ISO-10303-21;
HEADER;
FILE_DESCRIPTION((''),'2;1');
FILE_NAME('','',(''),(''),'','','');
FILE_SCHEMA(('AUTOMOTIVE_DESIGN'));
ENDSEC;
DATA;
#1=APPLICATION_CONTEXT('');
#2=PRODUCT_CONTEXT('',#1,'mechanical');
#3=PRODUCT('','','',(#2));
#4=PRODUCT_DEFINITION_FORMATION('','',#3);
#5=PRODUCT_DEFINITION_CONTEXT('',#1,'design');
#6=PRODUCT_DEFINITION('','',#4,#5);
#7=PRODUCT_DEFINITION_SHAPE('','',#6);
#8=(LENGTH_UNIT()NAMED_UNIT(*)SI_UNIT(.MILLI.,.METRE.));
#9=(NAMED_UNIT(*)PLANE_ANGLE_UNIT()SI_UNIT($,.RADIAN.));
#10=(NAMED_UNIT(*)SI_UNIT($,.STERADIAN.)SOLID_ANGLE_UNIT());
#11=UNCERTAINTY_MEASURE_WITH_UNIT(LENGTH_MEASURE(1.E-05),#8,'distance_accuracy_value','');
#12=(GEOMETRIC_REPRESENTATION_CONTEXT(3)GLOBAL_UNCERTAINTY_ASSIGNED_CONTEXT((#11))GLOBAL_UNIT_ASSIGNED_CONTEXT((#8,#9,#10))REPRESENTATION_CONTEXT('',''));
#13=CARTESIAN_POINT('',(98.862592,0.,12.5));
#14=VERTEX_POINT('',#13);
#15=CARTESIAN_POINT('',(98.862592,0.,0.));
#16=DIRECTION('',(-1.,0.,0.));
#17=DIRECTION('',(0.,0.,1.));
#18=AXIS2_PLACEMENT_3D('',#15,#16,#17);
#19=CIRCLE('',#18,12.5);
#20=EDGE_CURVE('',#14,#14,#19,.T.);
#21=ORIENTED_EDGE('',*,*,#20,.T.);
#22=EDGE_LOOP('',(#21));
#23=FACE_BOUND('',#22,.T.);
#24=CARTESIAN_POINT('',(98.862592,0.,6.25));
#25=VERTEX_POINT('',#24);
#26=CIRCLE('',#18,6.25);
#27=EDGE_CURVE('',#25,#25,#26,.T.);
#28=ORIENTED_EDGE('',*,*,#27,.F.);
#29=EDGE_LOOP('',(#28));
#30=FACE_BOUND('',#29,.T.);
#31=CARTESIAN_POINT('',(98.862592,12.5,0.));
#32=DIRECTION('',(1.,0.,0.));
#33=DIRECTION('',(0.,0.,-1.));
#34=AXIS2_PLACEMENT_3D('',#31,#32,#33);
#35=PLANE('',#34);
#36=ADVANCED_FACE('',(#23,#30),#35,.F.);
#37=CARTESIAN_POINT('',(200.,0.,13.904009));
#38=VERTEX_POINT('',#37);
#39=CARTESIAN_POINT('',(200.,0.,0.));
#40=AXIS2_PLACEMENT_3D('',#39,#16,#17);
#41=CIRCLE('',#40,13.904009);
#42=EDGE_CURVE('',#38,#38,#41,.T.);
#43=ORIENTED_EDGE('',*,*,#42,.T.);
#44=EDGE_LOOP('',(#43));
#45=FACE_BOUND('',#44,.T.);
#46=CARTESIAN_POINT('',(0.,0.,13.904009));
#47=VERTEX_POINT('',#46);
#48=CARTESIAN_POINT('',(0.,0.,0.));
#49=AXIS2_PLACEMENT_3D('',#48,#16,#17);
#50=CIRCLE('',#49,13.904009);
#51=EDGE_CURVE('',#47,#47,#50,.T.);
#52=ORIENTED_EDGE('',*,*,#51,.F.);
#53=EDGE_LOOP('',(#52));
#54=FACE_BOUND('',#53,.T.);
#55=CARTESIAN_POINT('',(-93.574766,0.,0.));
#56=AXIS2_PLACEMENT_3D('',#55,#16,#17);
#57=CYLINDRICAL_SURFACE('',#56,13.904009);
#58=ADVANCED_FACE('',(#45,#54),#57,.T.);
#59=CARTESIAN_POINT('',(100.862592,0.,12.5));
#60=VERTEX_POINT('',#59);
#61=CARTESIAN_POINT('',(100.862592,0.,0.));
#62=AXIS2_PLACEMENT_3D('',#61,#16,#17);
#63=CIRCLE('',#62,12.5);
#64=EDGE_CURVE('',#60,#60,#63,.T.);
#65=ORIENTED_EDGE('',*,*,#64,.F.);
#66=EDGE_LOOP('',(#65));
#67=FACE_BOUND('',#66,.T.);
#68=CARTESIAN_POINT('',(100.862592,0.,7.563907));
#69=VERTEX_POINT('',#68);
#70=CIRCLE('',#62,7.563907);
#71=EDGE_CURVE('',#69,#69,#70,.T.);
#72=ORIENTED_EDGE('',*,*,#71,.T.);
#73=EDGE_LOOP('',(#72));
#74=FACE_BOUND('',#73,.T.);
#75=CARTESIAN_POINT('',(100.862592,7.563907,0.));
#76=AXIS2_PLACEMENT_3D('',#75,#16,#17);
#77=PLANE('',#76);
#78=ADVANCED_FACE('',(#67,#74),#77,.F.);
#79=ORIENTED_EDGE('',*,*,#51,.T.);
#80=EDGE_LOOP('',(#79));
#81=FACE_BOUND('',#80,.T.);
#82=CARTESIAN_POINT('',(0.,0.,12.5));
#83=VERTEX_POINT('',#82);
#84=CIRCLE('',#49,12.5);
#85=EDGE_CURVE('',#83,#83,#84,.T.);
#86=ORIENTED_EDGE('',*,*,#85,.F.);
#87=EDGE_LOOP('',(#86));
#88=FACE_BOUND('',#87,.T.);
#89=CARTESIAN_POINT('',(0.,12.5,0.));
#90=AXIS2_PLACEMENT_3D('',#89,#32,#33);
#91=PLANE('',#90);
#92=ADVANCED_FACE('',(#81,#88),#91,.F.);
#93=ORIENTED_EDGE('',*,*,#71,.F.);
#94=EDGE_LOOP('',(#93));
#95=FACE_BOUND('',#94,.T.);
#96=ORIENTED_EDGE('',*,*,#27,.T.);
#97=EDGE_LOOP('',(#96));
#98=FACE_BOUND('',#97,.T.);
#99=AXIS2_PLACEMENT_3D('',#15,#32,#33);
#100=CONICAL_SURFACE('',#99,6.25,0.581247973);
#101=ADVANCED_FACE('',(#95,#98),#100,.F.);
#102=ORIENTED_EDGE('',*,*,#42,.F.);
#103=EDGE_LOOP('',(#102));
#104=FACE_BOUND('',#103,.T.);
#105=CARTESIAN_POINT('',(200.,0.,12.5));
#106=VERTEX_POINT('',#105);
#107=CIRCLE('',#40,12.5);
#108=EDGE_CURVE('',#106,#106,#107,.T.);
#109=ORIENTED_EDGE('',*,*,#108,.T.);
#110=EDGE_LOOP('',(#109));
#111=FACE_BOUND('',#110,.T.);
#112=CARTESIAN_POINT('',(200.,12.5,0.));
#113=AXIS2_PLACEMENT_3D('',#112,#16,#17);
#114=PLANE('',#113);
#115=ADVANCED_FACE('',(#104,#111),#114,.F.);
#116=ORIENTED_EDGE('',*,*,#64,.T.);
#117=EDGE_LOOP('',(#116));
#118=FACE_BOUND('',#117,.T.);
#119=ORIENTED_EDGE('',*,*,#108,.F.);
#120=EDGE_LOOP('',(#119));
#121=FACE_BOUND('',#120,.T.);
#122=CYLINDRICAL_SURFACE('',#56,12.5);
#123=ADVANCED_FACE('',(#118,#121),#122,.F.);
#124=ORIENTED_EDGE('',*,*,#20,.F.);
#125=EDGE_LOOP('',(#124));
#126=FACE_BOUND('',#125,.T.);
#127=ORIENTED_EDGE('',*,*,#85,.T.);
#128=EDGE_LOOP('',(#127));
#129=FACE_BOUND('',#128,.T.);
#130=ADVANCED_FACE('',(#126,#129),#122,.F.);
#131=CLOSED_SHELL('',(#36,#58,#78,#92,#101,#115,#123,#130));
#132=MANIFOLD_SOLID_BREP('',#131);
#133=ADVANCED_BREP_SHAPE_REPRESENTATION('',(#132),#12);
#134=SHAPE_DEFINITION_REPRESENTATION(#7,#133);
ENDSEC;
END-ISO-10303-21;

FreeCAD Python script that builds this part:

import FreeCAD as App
import Part
import Sketcher

doc = App.newDocument("Part")
params = doc.addObject("Spreadsheet::Sheet", "Params")
for row, (alias, value) in enumerate([
    ("sketch1_width", "200 mm"),
    ("sketch1_height", "6.25 mm"),
    ("revolution_angle", "360 deg"),
], start=1):
    params.set(f"A{row}", alias)
    params.set(f"B{row}", "=" + value)
    params.setAlias(f"B{row}", alias)

body = doc.addObject("PartDesign::Body", "Body")

# Sketch on XY plane
sketch1 = doc.addObject("Sketcher::SketchObject", "Sketch")
body.addObject(sketch1)
sketch1.AttachmentSupport = (doc.XY_Plane, [""])
sketch1.MapMode = "FlatFace"
sketch1.addGeometry(Part.LineSegment(App.Vector(0, 12.5, 0), App.Vector(98.9, 12.5, 0)), False)
sketch1.addGeometry(Part.LineSegment(App.Vector(98.9, 12.5, 0), App.Vector(98.9, 6.2, 0)), False)
sketch1.addGeometry(Part.LineSegment(App.Vector(98.9, 6.2, 0), App.Vector(100.9, 7.6, 0)), False)
sketch1.addGeometry(Part.LineSegment(App.Vector(100.9, 7.6, 0), App.Vector(100.9, 12.5, 0)), False)
sketch1.addGeometry(Part.LineSegment(App.Vector(100.9, 12.5, 0), App.Vector(200, 12.5, 0)), False)
sketch1.addGeometry(Part.LineSegment(App.Vector(200, 12.5, 0), App.Vector(200, 13.9, 0)), False)
sketch1.addGeometry(Part.LineSegment(App.Vector(200, 13.9, 0), App.Vector(0, 13.9, 0)), False)
sketch1.addGeometry(Part.LineSegment(App.Vector(0, 13.9, 0), App.Vector(0, 12.5, 0)), False)
sketch1.addConstraint(Sketcher.Constraint("Coincident", 0, 2, 1, 1))
sketch1.addConstraint(Sketcher.Constraint("Coincident", 1, 2, 2, 1))
sketch1.addConstraint(Sketcher.Constraint("Coincident", 2, 2, 3, 1))
sketch1.addConstraint(Sketcher.Constraint("Coincident", 3, 2, 4, 1))
sketch1.addConstraint(Sketcher.Constraint("Coincident", 4, 2, 5, 1))
sketch1.addConstraint(Sketcher.Constraint("Coincident", 5, 2, 6, 1))
sketch1.addConstraint(Sketcher.Constraint("Coincident", 6, 2, 7, 1))
sketch1.addConstraint(Sketcher.Constraint("Coincident", 7, 2, 0, 1))
sketch1.addConstraint(Sketcher.Constraint("Horizontal", 0))
sketch1.addConstraint(Sketcher.Constraint("Vertical", 1))
sketch1.addConstraint(Sketcher.Constraint("Vertical", 3))
sketch1.addConstraint(Sketcher.Constraint("Horizontal", 4))
sketch1.addConstraint(Sketcher.Constraint("Vertical", 5))
sketch1.addConstraint(Sketcher.Constraint("Horizontal", 6))
sketch1.addConstraint(Sketcher.Constraint("Vertical", 7))
sketch1.addConstraint(Sketcher.Constraint("PointOnObject", 6, 2, -2))
sketch1.addConstraint(Sketcher.Constraint("Horizontal", 0, 2, 3, 2))
sketch1.addConstraint(Sketcher.Constraint("DistanceX", 6, 2, 6, 1, 200.0))
sketch1.addConstraint(Sketcher.Constraint("DistanceX", 1, 2, 2, 2, 2.0))
sketch1.addConstraint(Sketcher.Constraint("DistanceY", 1, 2, 1, 1, 6.25))
sketch1.addConstraint(Sketcher.Constraint("DistanceY", -1, 1, 0, 2, 12.5))
sketch1.addConstraint(Sketcher.Constraint("DistanceX", 0, 1, 0, 2, 98.862592))
sketch1.addConstraint(Sketcher.Constraint("DistanceY", 5, 1, 5, 2, 1.404009))
sketch1.addConstraint(Sketcher.Constraint("Distance", 2, 2.39298))
sketch1.setExpression("Constraints[17]", "Params.sketch1_width")
sketch1.setExpression("Constraints[19]", "Params.sketch1_height")
revolution = doc.addObject("PartDesign::Revolution", "Revolution")
body.addObject(revolution)
revolution.Profile = sketch1
revolution.ReferenceAxis = (sketch1, ["H_Axis"])
revolution.setExpression("Angle", "Params.revolution_angle")

doc.recompute()
